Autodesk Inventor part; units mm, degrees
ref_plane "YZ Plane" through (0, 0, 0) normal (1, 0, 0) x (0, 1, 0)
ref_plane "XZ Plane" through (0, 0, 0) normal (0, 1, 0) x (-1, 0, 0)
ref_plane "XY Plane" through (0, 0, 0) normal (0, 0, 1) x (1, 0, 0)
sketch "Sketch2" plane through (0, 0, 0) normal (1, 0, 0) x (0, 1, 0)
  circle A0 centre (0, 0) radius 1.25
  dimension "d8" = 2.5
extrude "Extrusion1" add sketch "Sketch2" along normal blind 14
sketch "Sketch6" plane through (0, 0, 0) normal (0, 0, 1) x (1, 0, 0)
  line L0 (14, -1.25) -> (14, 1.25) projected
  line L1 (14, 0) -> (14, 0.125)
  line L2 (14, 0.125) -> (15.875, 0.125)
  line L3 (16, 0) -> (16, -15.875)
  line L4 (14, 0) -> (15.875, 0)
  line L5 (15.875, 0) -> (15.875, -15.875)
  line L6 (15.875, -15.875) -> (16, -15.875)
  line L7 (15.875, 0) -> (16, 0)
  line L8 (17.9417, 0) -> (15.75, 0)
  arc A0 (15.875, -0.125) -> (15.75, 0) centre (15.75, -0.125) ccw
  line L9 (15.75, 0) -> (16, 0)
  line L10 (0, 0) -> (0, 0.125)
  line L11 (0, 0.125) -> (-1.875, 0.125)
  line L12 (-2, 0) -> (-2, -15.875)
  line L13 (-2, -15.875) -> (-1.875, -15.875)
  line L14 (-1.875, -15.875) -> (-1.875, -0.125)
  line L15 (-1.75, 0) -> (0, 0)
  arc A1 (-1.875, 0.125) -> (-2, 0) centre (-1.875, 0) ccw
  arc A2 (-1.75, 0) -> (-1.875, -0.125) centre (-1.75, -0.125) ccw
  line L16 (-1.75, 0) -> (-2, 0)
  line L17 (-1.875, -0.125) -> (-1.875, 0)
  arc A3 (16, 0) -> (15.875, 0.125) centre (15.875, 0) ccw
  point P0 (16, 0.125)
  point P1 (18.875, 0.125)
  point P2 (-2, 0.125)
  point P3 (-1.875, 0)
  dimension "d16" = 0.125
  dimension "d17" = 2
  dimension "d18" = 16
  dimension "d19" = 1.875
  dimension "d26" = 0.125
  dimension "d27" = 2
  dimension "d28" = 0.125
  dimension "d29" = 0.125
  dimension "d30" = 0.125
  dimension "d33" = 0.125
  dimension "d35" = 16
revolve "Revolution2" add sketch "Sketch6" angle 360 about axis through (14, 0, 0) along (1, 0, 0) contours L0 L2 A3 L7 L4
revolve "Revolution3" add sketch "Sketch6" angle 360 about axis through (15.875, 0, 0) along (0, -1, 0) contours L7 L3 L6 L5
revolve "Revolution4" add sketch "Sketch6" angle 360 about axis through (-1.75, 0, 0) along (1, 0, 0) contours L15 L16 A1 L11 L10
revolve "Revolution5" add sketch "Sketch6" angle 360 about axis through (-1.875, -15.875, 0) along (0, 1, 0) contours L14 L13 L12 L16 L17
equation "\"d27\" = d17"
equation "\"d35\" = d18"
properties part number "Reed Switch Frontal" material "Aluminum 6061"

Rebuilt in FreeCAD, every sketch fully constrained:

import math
import FreeCAD as App
import Part
import Sketcher
from FreeCAD import Vector
Q = App.Units.Quantity


def add_polygon(sketch, points):
    """Adds a closed chain of lines whose ends are joined by coincident constraints."""
    first, n = sketch.GeometryCount, len(points)
    for a, b in zip(points, points[1:] + points[:1]):
        sketch.addGeometry(Part.LineSegment(App.Vector(*a, 0), App.Vector(*b, 0)), False)
    for i in range(n):
        sketch.addConstraint(Sketcher.Constraint("Coincident", first + i, 2, first + (i + 1) % n, 1))

doc = App.newDocument("Part")
body = doc.addObject("PartDesign::Body", "Body")

sketch1 = body.newObject("Sketcher::SketchObject", "Sketch")
sketch1.AttachmentSupport = (doc.getObject("YZ_Plane"), [""])
sketch1.MapMode = "FlatFace"
sketch1.addGeometry(Part.Circle(Vector(0, 0, 0), Vector(0, 0, 1), 1.2), False)
sketch1.addConstraint([
    Sketcher.Constraint("Coincident", 0, 3, -1, 1),
    Sketcher.Constraint("Diameter", 0, Q("2.5 mm")),
])
pad1 = body.newObject("PartDesign::Pad", "Pad")
pad1.Profile = sketch1
pad1.Length = 14

sketch2 = body.newObject("Sketcher::SketchObject", "Sketch001")
sketch2.AttachmentSupport = (doc.getObject("XY_Plane"), [""])
sketch2.MapMode = "FlatFace"
sketch2.addGeometry([
    Part.LineSegment(Vector(14, 0.12, 0), Vector(14, 0, 0)),
    Part.LineSegment(Vector(14, 0, 0), Vector(16, 0, 0)),
    Part.ArcOfCircle(Part.Circle(Vector(15.88, 0, 0), Vector(0, 0, 1), 0.12), math.radians(0), math.radians(90)),
    Part.LineSegment(Vector(15.88, 0.12, 0), Vector(14, 0.12, 0)),
], False)
sketch2.addConstraint([
    Sketcher.Constraint("Coincident", 0, 2, 1, 1),
    Sketcher.Constraint("Coincident", 1, 2, 2, 1),
    Sketcher.Constraint("Tangent", 2, 2, 3, 1),
    Sketcher.Constraint("Coincident", 3, 2, 0, 1),
    Sketcher.Constraint("Vertical", 0),
    Sketcher.Constraint("Horizontal", 1),
    Sketcher.Constraint("Horizontal", 3),
    Sketcher.Constraint("PointOnObject", 2, 3, -1),
    Sketcher.Constraint("PointOnObject", 0, 2, -1),
    Sketcher.Constraint("DistanceX", 1, 1, 1, 2, Q("2 mm")),
    Sketcher.Constraint("DistanceX", -1, 1, 1, 2, Q("16 mm")),
    Sketcher.Constraint("Radius", 2, Q("0.125 mm")),
])
revolution = body.newObject("PartDesign::Revolution", "Revolution")
revolution.Profile = sketch2
revolution.ReferenceAxis = (sketch2, ["H_Axis"])
revolution.Angle = 360

sketch3 = body.newObject("Sketcher::SketchObject", "Sketch002")
sketch3.AttachmentSupport = (doc.getObject("XY_Plane"), [""])
sketch3.MapMode = "FlatFace"
add_polygon(sketch3, [(16, 0), (15.88, 0), (15.88, -15.88), (16, -15.88)])
sketch3.addGeometry(Part.LineSegment(Vector(15.88, 0, 0), Vector(15.88, -15.88, 0)), True)
sketch3.addConstraint([
    Sketcher.Constraint("Horizontal", 0),
    Sketcher.Constraint("Vertical", 1),
    Sketcher.Constraint("Horizontal", 2),
    Sketcher.Constraint("Vertical", 3),
    Sketcher.Constraint("Vertical", 4),
    Sketcher.Constraint("Coincident", 4, 1, 0, 2),
    Sketcher.Constraint("PointOnObject", 0, 2, -1),
    Sketcher.Constraint("Horizontal", 2, 2, 4, 2),
    Sketcher.Constraint("DistanceX", -1, 1, 2, 2, Q("16 mm")),
    Sketcher.Constraint("DistanceX", 0, 2, 0, 1, Q("0.125 mm")),
    Sketcher.Constraint("DistanceY", 1, 2, 1, 1, Q("15.875 mm")),
])
revolution2 = body.newObject("PartDesign::Revolution", "Revolution001")
revolution2.Profile = sketch3
revolution2.ReferenceAxis = (sketch3, ["Axis0"])
revolution2.Angle = 360

sketch4 = body.newObject("Sketcher::SketchObject", "Sketch003")
sketch4.AttachmentSupport = (doc.getObject("XY_Plane"), [""])
sketch4.MapMode = "FlatFace"
sketch4.addGeometry([
    Part.LineSegment(Vector(-2, 0, 0), Vector(0, 0, 0)),
    Part.LineSegment(Vector(0, 0, 0), Vector(0, 0.12, 0)),
    Part.LineSegment(Vector(0, 0.12, 0), Vector(-1.88, 0.12, 0)),
    Part.ArcOfCircle(Part.Circle(Vector(-1.88, 0, 0), Vector(0, 0, 1), 0.12), math.radians(90), math.radians(180)),
], False)
sketch4.addConstraint([
    Sketcher.Constraint("Coincident", 0, 2, 1, 1),
    Sketcher.Constraint("Coincident", 1, 2, 2, 1),
    Sketcher.Constraint("Tangent", 2, 2, 3, 1),
    Sketcher.Constraint("Coincident", 3, 2, 0, 1),
    Sketcher.Constraint("Horizontal", 0),
    Sketcher.Constraint("Vertical", 1),
    Sketcher.Constraint("Horizontal", 2),
    Sketcher.Constraint("Coincident", 0, 2, -1, 1),
    Sketcher.Constraint("PointOnObject", 3, 3, -1),
    Sketcher.Constraint("DistanceX", 0, 1, 0, 2, Q("2 mm")),
    Sketcher.Constraint("Radius", 3, Q("0.125 mm")),
])
revolution3 = body.newObject("PartDesign::Revolution", "Revolution002")
revolution3.Profile = sketch4
revolution3.ReferenceAxis = (sketch4, ["H_Axis"])
revolution3.Angle = 360

sketch5 = body.newObject("Sketcher::SketchObject", "Sketch004")
sketch5.AttachmentSupport = (doc.getObject("XY_Plane"), [""])
sketch5.MapMode = "FlatFace"
add_polygon(sketch5, [(-1.88, -15.88), (-1.88, 0), (-2, 0), (-2, -15.88)])
sketch5.addGeometry(Part.LineSegment(Vector(-1.88, -15.88, 0), Vector(-1.88, 0, 0)), True)
sketch5.addConstraint([
    Sketcher.Constraint("Vertical", 0),
    Sketcher.Constraint("Horizontal", 1),
    Sketcher.Constraint("Vertical", 2),
    Sketcher.Constraint("Horizontal", 3),
    Sketcher.Constraint("Vertical", 4),
    Sketcher.Constraint("Coincident", 4, 1, 3, 2),
    Sketcher.Constraint("PointOnObject", 0, 2, -1),
    Sketcher.Constraint("PointOnObject", 4, 2, -1),
    Sketcher.Constraint("DistanceX", 1, 2, -1, 1, Q("2 mm")),
    Sketcher.Constraint("DistanceX", 1, 2, 1, 1, Q("0.125 mm")),
    Sketcher.Constraint("DistanceY", 0, 1, 0, 2, Q("15.875 mm")),
])
revolution4 = body.newObject("PartDesign::Revolution", "Revolution003")
revolution4.Profile = sketch5
revolution4.ReferenceAxis = (sketch5, ["Axis0"])
revolution4.Angle = 360

doc.recompute()
